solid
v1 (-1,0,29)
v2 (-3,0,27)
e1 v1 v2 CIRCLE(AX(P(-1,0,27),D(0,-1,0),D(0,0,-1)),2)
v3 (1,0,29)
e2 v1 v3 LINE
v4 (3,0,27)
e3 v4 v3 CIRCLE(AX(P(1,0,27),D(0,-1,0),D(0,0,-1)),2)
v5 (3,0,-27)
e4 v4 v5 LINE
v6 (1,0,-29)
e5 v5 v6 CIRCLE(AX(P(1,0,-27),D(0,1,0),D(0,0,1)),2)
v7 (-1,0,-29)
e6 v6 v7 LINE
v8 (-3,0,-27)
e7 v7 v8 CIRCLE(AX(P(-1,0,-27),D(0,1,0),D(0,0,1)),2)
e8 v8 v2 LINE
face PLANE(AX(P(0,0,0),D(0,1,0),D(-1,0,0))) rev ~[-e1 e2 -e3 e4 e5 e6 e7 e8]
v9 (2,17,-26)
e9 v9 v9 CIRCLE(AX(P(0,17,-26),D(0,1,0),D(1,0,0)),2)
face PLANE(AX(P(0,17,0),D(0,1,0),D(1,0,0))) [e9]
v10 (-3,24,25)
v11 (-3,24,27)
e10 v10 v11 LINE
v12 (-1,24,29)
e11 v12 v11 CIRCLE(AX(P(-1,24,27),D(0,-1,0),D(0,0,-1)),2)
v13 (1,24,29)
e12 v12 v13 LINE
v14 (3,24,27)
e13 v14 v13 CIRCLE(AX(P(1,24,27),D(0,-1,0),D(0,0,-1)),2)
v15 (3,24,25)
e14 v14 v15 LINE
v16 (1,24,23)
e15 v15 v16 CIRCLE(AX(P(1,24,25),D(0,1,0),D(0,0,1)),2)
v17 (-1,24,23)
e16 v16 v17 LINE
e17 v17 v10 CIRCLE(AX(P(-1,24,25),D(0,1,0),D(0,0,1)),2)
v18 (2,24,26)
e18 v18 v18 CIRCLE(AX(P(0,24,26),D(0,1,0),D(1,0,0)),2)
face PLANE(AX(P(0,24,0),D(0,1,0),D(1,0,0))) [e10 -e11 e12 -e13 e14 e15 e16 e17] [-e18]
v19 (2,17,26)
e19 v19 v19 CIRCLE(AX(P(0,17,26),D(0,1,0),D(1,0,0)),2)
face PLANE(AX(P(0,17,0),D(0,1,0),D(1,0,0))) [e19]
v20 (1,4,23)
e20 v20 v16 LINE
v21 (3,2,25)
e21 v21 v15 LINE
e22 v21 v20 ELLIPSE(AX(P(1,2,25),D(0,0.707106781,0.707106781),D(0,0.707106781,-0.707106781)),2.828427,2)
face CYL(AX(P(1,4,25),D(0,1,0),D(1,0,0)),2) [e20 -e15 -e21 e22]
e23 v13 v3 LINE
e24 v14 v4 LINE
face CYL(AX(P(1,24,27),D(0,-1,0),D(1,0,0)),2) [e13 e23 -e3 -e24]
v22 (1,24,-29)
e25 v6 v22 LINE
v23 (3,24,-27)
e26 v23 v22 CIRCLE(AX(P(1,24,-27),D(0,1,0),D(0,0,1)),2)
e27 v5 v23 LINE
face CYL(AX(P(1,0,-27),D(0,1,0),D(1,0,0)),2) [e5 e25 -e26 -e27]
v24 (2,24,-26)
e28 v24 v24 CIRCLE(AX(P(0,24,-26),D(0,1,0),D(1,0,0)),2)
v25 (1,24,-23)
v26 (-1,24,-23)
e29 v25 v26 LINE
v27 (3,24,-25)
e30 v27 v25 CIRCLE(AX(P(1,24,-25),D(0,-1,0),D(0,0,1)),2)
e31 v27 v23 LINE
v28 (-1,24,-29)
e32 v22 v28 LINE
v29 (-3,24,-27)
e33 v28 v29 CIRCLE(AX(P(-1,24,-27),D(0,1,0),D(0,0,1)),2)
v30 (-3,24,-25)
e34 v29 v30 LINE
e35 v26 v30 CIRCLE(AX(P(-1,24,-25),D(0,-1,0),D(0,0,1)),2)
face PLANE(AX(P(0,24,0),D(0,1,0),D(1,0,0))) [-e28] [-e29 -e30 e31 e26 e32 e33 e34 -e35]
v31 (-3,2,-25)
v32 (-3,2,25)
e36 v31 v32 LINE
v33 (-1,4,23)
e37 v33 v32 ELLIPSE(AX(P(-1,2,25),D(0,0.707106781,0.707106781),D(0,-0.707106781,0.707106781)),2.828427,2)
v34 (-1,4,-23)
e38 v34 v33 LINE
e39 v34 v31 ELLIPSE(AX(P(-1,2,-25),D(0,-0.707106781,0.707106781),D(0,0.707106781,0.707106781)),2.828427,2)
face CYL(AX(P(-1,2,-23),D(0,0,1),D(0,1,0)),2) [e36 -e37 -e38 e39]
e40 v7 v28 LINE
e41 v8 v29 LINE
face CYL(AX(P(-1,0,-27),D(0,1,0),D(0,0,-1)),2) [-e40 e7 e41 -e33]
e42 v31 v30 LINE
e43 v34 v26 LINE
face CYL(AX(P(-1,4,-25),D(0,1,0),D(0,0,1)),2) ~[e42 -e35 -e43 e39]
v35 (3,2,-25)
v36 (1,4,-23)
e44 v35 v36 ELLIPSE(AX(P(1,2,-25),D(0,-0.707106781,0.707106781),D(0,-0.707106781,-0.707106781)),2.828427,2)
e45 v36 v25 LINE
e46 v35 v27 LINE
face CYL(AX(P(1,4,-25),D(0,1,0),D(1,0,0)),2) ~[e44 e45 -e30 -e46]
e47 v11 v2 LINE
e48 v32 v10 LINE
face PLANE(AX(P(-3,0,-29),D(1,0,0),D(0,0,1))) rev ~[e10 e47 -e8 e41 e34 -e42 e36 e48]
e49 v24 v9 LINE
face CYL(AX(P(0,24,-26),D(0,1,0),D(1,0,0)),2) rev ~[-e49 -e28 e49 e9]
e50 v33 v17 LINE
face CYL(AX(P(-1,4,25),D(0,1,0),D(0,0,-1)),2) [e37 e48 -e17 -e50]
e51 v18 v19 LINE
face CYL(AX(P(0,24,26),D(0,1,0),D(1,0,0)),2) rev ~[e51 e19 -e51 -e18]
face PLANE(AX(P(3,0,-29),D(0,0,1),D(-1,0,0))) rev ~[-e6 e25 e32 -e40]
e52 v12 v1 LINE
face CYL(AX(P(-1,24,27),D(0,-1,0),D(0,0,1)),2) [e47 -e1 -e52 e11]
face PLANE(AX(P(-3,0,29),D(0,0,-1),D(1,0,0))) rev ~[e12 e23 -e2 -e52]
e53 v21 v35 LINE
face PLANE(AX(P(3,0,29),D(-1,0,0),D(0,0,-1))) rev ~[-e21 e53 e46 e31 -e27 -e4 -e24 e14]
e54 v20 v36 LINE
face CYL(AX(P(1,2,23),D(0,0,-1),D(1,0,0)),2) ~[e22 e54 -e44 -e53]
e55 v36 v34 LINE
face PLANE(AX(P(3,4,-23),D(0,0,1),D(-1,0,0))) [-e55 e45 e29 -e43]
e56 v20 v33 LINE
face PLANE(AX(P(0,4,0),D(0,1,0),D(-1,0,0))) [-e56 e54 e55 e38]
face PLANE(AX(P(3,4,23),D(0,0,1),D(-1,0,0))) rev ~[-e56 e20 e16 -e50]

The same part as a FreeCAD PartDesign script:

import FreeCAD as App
import Part
import Sketcher
Q = App.Units.Quantity


def edges_at(feature, points):
    """Names of the edges that pass closest to the given points."""
    edges = feature.Shape.Edges
    near = lambda p: min(range(len(edges)), key=lambda i: edges[i].distToShape(Part.Vertex(*p))[0])
    return sorted({f"Edge{near(p) + 1}" for p in points})

doc = App.newDocument("Part")
body = doc.addObject("PartDesign::Body", "Body")

sketch1 = body.newObject("Sketcher::SketchObject", "Sketch")
sketch1.AttachmentSupport = (doc.getObject("XZ_Plane"), [""])
sketch1.MapMode = "FlatFace"
sketch1.addGeometry([
    Part.LineSegment(App.Vector(3, 29, 0), App.Vector(3, -29, 0)),
    Part.LineSegment(App.Vector(3, -29, 0), App.Vector(-3, -29, 0)),
    Part.LineSegment(App.Vector(-3, -29, 0), App.Vector(-3, 29, 0)),
    Part.LineSegment(App.Vector(-3, 29, 0), App.Vector(3, 29, 0)),
], False)
sketch1.addConstraint([
    Sketcher.Constraint("Coincident", 0, 2, 1, 1),
    Sketcher.Constraint("Coincident", 1, 2, 2, 1),
    Sketcher.Constraint("Coincident", 2, 2, 3, 1),
    Sketcher.Constraint("Coincident", 3, 2, 0, 1),
    Sketcher.Constraint("Vertical", 0),
    Sketcher.Constraint("Horizontal", 1),
    Sketcher.Constraint("Vertical", 2),
    Sketcher.Constraint("Horizontal", 3),
    Sketcher.Constraint("Symmetric", 0, 2, 2, 2, -1, 1),
    Sketcher.Constraint("DistanceX", 1, 2, 1, 1, Q("6 mm")),
    Sketcher.Constraint("DistanceY", 0, 2, 0, 1, Q("58 mm")),
])
pad1 = body.newObject("PartDesign::Pad", "Pad")
pad1.Profile = sketch1
pad1.Length = 4
pad1.Reversed = True

sketch2 = body.newObject("Sketcher::SketchObject", "Sketch001")
sketch2.AttachmentSupport = (doc.getObject("XZ_Plane"), [""])
sketch2.MapMode = "FlatFace"
sketch2.AttachmentOffset = App.Placement(App.Vector(0, 0, -4), App.Rotation())
sketch2.addGeometry([
    Part.LineSegment(App.Vector(3, -29, 0), App.Vector(-3, -29, 0)),
    Part.LineSegment(App.Vector(-3, -29, 0), App.Vector(-3, -23, 0)),
    Part.LineSegment(App.Vector(-3, -23, 0), App.Vector(3, -23, 0)),
    Part.LineSegment(App.Vector(3, -23, 0), App.Vector(3, -29, 0)),
    Part.LineSegment(App.Vector(3, 23, 0), App.Vector(-3, 23, 0)),
    Part.LineSegment(App.Vector(-3, 23, 0), App.Vector(-3, 29, 0)),
    Part.LineSegment(App.Vector(-3, 29, 0), App.Vector(3, 29, 0)),
    Part.LineSegment(App.Vector(3, 29, 0), App.Vector(3, 23, 0)),
], False)
sketch2.addConstraint([
    Sketcher.Constraint("Coincident", 0, 2, 1, 1),
    Sketcher.Constraint("Coincident", 1, 2, 2, 1),
    Sketcher.Constraint("Coincident", 2, 2, 3, 1),
    Sketcher.Constraint("Coincident", 3, 2, 0, 1),
    Sketcher.Constraint("Coincident", 4, 2, 5, 1),
    Sketcher.Constraint("Coincident", 5, 2, 6, 1),
    Sketcher.Constraint("Coincident", 6, 2, 7, 1),
    Sketcher.Constraint("Coincident", 7, 2, 4, 1),
    Sketcher.Constraint("Horizontal", 0),
    Sketcher.Constraint("Vertical", 1),
    Sketcher.Constraint("Horizontal", 2),
    Sketcher.Constraint("Vertical", 3),
    Sketcher.Constraint("Horizontal", 4),
    Sketcher.Constraint("Vertical", 5),
    Sketcher.Constraint("Horizontal", 6),
    Sketcher.Constraint("Vertical", 7),
    Sketcher.Constraint("Symmetric", 2, 2, 4, 2, -1, 1),
    Sketcher.Constraint("Symmetric", 0, 2, 6, 2, -1, 1),
    Sketcher.Constraint("Vertical", 1, 2, 4, 2),
    Sketcher.Constraint("Equal", 6, 1),
    Sketcher.Constraint("DistanceX", 0, 2, 0, 1, Q("6 mm")),
    Sketcher.Constraint("DistanceY", 0, 2, -1, 1, Q("29 mm")),
])
pad2 = body.newObject("PartDesign::Pad", "Pad001")
pad2.Profile = sketch2
pad2.Length = 20
pad2.Reversed = True

sketch3 = body.newObject("Sketcher::SketchObject", "Sketch002")
sketch3.AttachmentSupport = (doc.getObject("XZ_Plane"), [""])
sketch3.MapMode = "FlatFace"
sketch3.AttachmentOffset = App.Placement(App.Vector(0, 0, -24), App.Rotation())
sketch3.addGeometry([
    Part.Circle(App.Vector(0, -26, 0), App.Vector(0, 0, 1), 2),
    Part.Circle(App.Vector(0, 26, 0), App.Vector(0, 0, 1), 2),
], False)
sketch3.addConstraint([
    Sketcher.Constraint("Equal", 0, 1),
    Sketcher.Constraint("Symmetric", 0, 3, 1, 3, -1, 1),
    Sketcher.Constraint("PointOnObject", 0, 3, -2),
    Sketcher.Constraint("Diameter", 0, Q("4 mm")),
    Sketcher.Constraint("DistanceY", 0, 3, -1, 1, Q("26 mm")),
])
pocket1 = body.newObject("PartDesign::Pocket", "Pocket")
pocket1.Profile = sketch3
pocket1.Length = 7
pocket1.Reversed = True
doc.recompute()

fillet = body.newObject("PartDesign::Fillet", "Fillet")
fillet.Base = (pocket1, edges_at(pocket1, [
    (-3, 14, -23),
    (-3, 12, -29),
    (-3, 4, 0),
    (3, 4, 0),
    (-3, 12, 29),
    (-3, 14, 23),
    (3, 12, 29),
    (3, 14, -23),
    (3, 12, -29),
    (3, 14, 23),
]))
fillet.Radius = 2

doc.recompute()
